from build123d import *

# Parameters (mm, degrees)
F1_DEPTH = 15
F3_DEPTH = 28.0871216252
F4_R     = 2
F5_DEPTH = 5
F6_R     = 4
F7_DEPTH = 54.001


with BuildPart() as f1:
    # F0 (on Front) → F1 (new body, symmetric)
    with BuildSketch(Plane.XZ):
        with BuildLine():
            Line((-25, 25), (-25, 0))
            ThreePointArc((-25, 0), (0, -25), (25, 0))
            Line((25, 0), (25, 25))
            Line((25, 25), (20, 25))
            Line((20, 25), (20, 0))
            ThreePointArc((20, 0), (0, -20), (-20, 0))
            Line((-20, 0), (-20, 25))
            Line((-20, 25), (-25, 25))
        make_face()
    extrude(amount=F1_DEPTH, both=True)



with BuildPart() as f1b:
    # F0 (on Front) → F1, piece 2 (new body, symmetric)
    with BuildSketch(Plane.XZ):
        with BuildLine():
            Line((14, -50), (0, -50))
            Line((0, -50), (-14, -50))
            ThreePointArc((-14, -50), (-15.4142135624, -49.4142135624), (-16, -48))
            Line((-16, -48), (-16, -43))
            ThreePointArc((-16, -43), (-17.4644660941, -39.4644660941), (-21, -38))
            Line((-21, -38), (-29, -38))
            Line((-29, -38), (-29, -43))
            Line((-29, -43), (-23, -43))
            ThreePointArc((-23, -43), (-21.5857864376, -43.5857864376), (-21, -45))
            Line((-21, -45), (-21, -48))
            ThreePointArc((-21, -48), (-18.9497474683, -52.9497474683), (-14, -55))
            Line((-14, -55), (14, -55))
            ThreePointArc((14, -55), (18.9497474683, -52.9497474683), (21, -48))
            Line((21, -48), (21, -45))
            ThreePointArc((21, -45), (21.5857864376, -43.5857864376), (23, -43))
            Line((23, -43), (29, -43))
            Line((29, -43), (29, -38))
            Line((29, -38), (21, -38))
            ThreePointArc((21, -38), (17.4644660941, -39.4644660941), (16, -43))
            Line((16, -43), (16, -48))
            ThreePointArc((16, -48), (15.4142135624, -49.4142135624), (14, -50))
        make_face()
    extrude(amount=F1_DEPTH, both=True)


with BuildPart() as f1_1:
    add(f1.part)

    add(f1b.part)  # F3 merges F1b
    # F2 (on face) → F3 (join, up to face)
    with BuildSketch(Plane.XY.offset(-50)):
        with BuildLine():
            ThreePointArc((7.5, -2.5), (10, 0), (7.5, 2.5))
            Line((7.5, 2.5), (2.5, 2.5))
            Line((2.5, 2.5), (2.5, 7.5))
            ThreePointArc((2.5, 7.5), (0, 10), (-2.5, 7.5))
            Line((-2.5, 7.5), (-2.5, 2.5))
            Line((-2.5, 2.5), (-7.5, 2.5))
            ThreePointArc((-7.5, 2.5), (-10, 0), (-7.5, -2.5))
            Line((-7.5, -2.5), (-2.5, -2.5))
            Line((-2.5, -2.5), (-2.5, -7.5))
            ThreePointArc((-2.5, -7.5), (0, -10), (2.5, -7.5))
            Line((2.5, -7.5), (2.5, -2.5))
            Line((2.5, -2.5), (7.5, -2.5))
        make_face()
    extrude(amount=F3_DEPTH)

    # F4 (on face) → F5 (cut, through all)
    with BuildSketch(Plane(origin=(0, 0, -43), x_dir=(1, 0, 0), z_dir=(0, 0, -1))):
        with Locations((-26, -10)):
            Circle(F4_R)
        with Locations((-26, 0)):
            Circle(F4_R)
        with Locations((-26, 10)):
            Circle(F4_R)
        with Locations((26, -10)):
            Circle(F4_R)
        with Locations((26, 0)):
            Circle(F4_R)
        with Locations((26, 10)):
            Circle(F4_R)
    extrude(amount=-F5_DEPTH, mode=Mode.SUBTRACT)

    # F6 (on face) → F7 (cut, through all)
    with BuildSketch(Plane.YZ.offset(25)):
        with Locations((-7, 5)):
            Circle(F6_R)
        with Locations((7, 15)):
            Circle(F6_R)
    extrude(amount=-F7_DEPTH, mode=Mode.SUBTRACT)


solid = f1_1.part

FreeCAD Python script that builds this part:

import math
import FreeCAD as App
import Part
import Sketcher

V = App.Vector
Q = App.Units.Quantity

doc = App.newDocument("Part")
body = doc.addObject("PartDesign::Body", "Body")

sketch1 = doc.addObject("Sketcher::SketchObject", "Sketch")
body.addObject(sketch1)
sketch1.AttachmentSupport = (doc.XZ_Plane, [""])
sketch1.MapMode = "FlatFace"
sketch1.addGeometry([
    Part.LineSegment(V(-25, 25, 0), V(-25, 0, 0)),
    Part.ArcOfCircle(Part.Circle(V(0, 0, 0), V(0, 0, 1), 25), math.radians(180), math.radians(360)),
    Part.LineSegment(V(25, 0, 0), V(25, 25, 0)),
    Part.LineSegment(V(25, 25, 0), V(20, 25, 0)),
    Part.LineSegment(V(20, 25, 0), V(20, 0, 0)),
    Part.ArcOfCircle(Part.Circle(V(0, 0, 0), V(0, 0, 1), 20), math.radians(180), math.radians(360)),
    Part.LineSegment(V(-20, 0, 0), V(-20, 25, 0)),
    Part.LineSegment(V(-20, 25, 0), V(-25, 25, 0)),
], False)
sketch1.addConstraint([
    Sketcher.Constraint("Tangent", 0, 2, 1, 1),
    Sketcher.Constraint("Tangent", 1, 2, 2, 1),
    Sketcher.Constraint("Coincident", 2, 2, 3, 1),
    Sketcher.Constraint("Coincident", 3, 2, 4, 1),
    Sketcher.Constraint("Tangent", 4, 2, 5, 2),
    Sketcher.Constraint("Tangent", 5, 1, 6, 1),
    Sketcher.Constraint("Coincident", 6, 2, 7, 1),
    Sketcher.Constraint("Coincident", 7, 2, 0, 1),
    Sketcher.Constraint("Vertical", 0),
    Sketcher.Constraint("Vertical", 2),
    Sketcher.Constraint("Horizontal", 3),
    Sketcher.Constraint("Vertical", 4),
    Sketcher.Constraint("Vertical", 6),
    Sketcher.Constraint("Horizontal", 7),
    Sketcher.Constraint("Coincident", 1, 3, -1, 1),
    Sketcher.Constraint("Coincident", 5, 3, -1, 1),
    Sketcher.Constraint("Horizontal", 3, 2, 6, 2),
    Sketcher.Constraint("Radius", 1, Q("25 mm")),
    Sketcher.Constraint("Radius", 5, Q("20 mm")),
    Sketcher.Constraint("DistanceY", 0, 2, 0, 1, Q("25 mm")),
])
pad1 = doc.addObject("PartDesign::Pad", "Pad")
body.addObject(pad1)
pad1.Profile = sketch1
pad1.Length = 30
pad1.Midplane = True
body2 = doc.addObject("PartDesign::Body", "Body001")

sketch2 = doc.addObject("Sketcher::SketchObject", "Sketch001")
body2.addObject(sketch2)
sketch2.AttachmentSupport = (doc.getObject("XZ_Plane001"), [""])
sketch2.MapMode = "FlatFace"
sketch2.addGeometry([
    Part.LineSegment(V(14, -50, 0), V(-14, -50, 0)),
    Part.ArcOfCircle(Part.Circle(V(-14, -48, 0), V(0, 0, 1), 2), math.radians(180), math.radians(270)),
    Part.LineSegment(V(-16, -48, 0), V(-16, -43, 0)),
    Part.ArcOfCircle(Part.Circle(V(-21, -43, 0), V(0, 0, 1), 5), math.radians(0), math.radians(90)),
    Part.LineSegment(V(-21, -38, 0), V(-29, -38, 0)),
    Part.LineSegment(V(-29, -38, 0), V(-29, -43, 0)),
    Part.LineSegment(V(-29, -43, 0), V(-23, -43, 0)),
    Part.ArcOfCircle(Part.Circle(V(-23, -45, 0), V(0, 0, 1), 2), math.radians(0), math.radians(90)),
    Part.LineSegment(V(-21, -45, 0), V(-21, -48, 0)),
    Part.ArcOfCircle(Part.Circle(V(-14, -48, 0), V(0, 0, 1), 7), math.radians(180), math.radians(270)),
    Part.LineSegment(V(-14, -55, 0), V(14, -55, 0)),
    Part.ArcOfCircle(Part.Circle(V(14, -48, 0), V(0, 0, 1), 7), math.radians(-90), math.radians(0)),
    Part.LineSegment(V(21, -48, 0), V(21, -45, 0)),
    Part.ArcOfCircle(Part.Circle(V(23, -45, 0), V(0, 0, 1), 2), math.radians(90), math.radians(180)),
    Part.LineSegment(V(23, -43, 0), V(29, -43, 0)),
    Part.LineSegment(V(29, -43, 0), V(29, -38, 0)),
    Part.LineSegment(V(29, -38, 0), V(21, -38, 0)),
    Part.ArcOfCircle(Part.Circle(V(21, -43, 0), V(0, 0, 1), 5), math.radians(90), math.radians(180)),
    Part.LineSegment(V(16, -43, 0), V(16, -48, 0)),
    Part.ArcOfCircle(Part.Circle(V(14, -48, 0), V(0, 0, 1), 2), math.radians(-90), math.radians(0)),
], False)
sketch2.addConstraint([
    Sketcher.Constraint("Tangent", 0, 2, 1, 2),
    Sketcher.Constraint("Tangent", 1, 1, 2, 1),
    Sketcher.Constraint("Tangent", 2, 2, 3, 1),
    Sketcher.Constraint("Tangent", 3, 2, 4, 1),
    Sketcher.Constraint("Coincident", 4, 2, 5, 1),
    Sketcher.Constraint("Coincident", 5, 2, 6, 1),
    Sketcher.Constraint("Tangent", 6, 2, 7, 2),
    Sketcher.Constraint("Tangent", 7, 1, 8, 1),
    Sketcher.Constraint("Tangent", 8, 2, 9, 1),
    Sketcher.Constraint("Tangent", 9, 2, 10, 1),
    Sketcher.Constraint("Tangent", 10, 2, 11, 1),
    Sketcher.Constraint("Tangent", 11, 2, 12, 1),
    Sketcher.Constraint("Tangent", 12, 2, 13, 2),
    Sketcher.Constraint("Tangent", 13, 1, 14, 1),
    Sketcher.Constraint("Coincident", 14, 2, 15, 1),
    Sketcher.Constraint("Coincident", 15, 2, 16, 1),
    Sketcher.Constraint("Tangent", 16, 2, 17, 1),
    Sketcher.Constraint("Tangent", 17, 2, 18, 1),
    Sketcher.Constraint("Tangent", 18, 2, 19, 2),
    Sketcher.Constraint("Tangent", 19, 1, 0, 1),
    Sketcher.Constraint("Horizontal", 0),
    Sketcher.Constraint("Vertical", 2),
    Sketcher.Constraint("Horizontal", 4),
    Sketcher.Constraint("Vertical", 5),
    Sketcher.Constraint("Horizontal", 6),
    Sketcher.Constraint("Vertical", 8),
    Sketcher.Constraint("Horizontal", 10),
    Sketcher.Constraint("Vertical", 12),
    Sketcher.Constraint("Horizontal", 14),
    Sketcher.Constraint("Vertical", 15),
    Sketcher.Constraint("Horizontal", 16),
    Sketcher.Constraint("Vertical", 18),
    Sketcher.Constraint("Coincident", 9, 3, 1, 3),
    Sketcher.Constraint("Coincident", 19, 3, 11, 3),
    Sketcher.Constraint("Equal", 1, 7),
    Sketcher.Constraint("Equal", 9, 11),
    Sketcher.Constraint("Equal", 7, 13),
    Sketcher.Constraint("Equal", 3, 17),
    Sketcher.Constraint("Symmetric", 7, 3, 13, 3, -2),
    Sketcher.Constraint("Symmetric", 4, 2, 15, 2, -2),
    Sketcher.Constraint("Horizontal", 2, 2, 5, 2),
    Sketcher.Constraint("Vertical", 3, 2, 7, 1),
    Sketcher.Constraint("Equal", 2, 5),
    Sketcher.Constraint("Radius", 1, Q("2 mm")),
    Sketcher.Constraint("Radius", 3, Q("5 mm")),
    Sketcher.Constraint("DistanceX", 0, 2, 0, 1, Q("28 mm")),
    Sketcher.Constraint("DistanceX", 4, 2, 4, 1, Q("8 mm")),
    Sketcher.Constraint("DistanceY", 1, 3, -1, 1, Q("48 mm")),
])
pad2 = doc.addObject("PartDesign::Pad", "Pad001")
body2.addObject(pad2)
pad2.Profile = sketch2
pad2.Length = 30
pad2.Midplane = True
body.AllowCompound = True
doc.recompute()

boolean = doc.addObject("PartDesign::Boolean", "Boolean")
body.addObject(boolean)
boolean.Type = "Fuse"
boolean.addObjects([body2])

sketch3 = doc.addObject("Sketcher::SketchObject", "Sketch002")
body.addObject(sketch3)
sketch3.AttachmentSupport = (doc.XY_Plane, [""])
sketch3.MapMode = "FlatFace"
sketch3.AttachmentOffset = App.Placement(V(0, 0, -50), App.Rotation())
sketch3.addGeometry([
    Part.ArcOfCircle(Part.Circle(V(7.5, 0, 0), V(0, 0, 1), 2.5), math.radians(-90), math.radians(90)),
    Part.LineSegment(V(7.5, 2.5, 0), V(2.5, 2.5, 0)),
    Part.LineSegment(V(2.5, 2.5, 0), V(2.5, 7.5, 0)),
    Part.ArcOfCircle(Part.Circle(V(0, 7.5, 0), V(0, 0, 1), 2.5), math.radians(0), math.radians(180)),
    Part.LineSegment(V(-2.5, 7.5, 0), V(-2.5, 2.5, 0)),
    Part.LineSegment(V(-2.5, 2.5, 0), V(-7.5, 2.5, 0)),
    Part.ArcOfCircle(Part.Circle(V(-7.5, 0, 0), V(0, 0, 1), 2.5), math.radians(90), math.radians(270)),
    Part.LineSegment(V(-7.5, -2.5, 0), V(-2.5, -2.5, 0)),
    Part.LineSegment(V(-2.5, -2.5, 0), V(-2.5, -7.5, 0)),
    Part.ArcOfCircle(Part.Circle(V(0, -7.5, 0), V(0, 0, 1), 2.5), math.radians(180), math.radians(360)),
    Part.LineSegment(V(2.5, -7.5, 0), V(2.5, -2.5, 0)),
    Part.LineSegment(V(2.5, -2.5, 0), V(7.5, -2.5, 0)),
], False)
sketch3.addConstraint([
    Sketcher.Constraint("Tangent", 0, 2, 1, 1),
    Sketcher.Constraint("Coincident", 1, 2, 2, 1),
    Sketcher.Constraint("Tangent", 2, 2, 3, 1),
    Sketcher.Constraint("Tangent", 3, 2, 4, 1),
    Sketcher.Constraint("Coincident", 4, 2, 5, 1),
    Sketcher.Constraint("Tangent", 5, 2, 6, 1),
    Sketcher.Constraint("Tangent", 6, 2, 7, 1),
    Sketcher.Constraint("Coincident", 7, 2, 8, 1),
    Sketcher.Constraint("Tangent", 8, 2, 9, 1),
    Sketcher.Constraint("Tangent", 9, 2, 10, 1),
    Sketcher.Constraint("Coincident", 10, 2, 11, 1),
    Sketcher.Constraint("Tangent", 11, 2, 0, 1),
    Sketcher.Constraint("Horizontal", 1),
    Sketcher.Constraint("Vertical", 2),
    Sketcher.Constraint("Vertical", 4),
    Sketcher.Constraint("Horizontal", 5),
    Sketcher.Constraint("Horizontal", 7),
    Sketcher.Constraint("Vertical", 8),
    Sketcher.Constraint("Vertical", 10),
    Sketcher.Constraint("Horizontal", 11),
    Sketcher.Constraint("Equal", 0, 3),
    Sketcher.Constraint("Equal", 3, 6),
    Sketcher.Constraint("Equal", 6, 9),
    Sketcher.Constraint("Symmetric", 0, 3, 6, 3, -1, 1),
    Sketcher.Constraint("Symmetric", 3, 3, 9, 3, -1, 1),
    Sketcher.Constraint("Symmetric", 1, 2, 4, 2, -2),
    Sketcher.Constraint("Equal", 11, 2),
    Sketcher.Constraint("Radius", 0, Q("2.5 mm")),
    Sketcher.Constraint("DistanceX", 1, 2, 1, 1, Q("5 mm")),
])
pad3 = doc.addObject("PartDesign::Pad", "Pad002")
body.addObject(pad3)
pad3.Profile = sketch3
pad3.Length = 28.087122

sketch4 = doc.addObject("Sketcher::SketchObject", "Sketch003")
body.addObject(sketch4)
sketch4.AttachmentSupport = (doc.XY_Plane, [""])
sketch4.MapMode = "FlatFace"
sketch4.AttachmentOffset = App.Placement(V(0, 0, -43), App.Rotation())
sketch4.addGeometry([
    Part.Circle(V(-26, 10, 0), V(0, 0, 1), 2),
    Part.Circle(V(-26, 0, 0), V(0, 0, 1), 2),
    Part.Circle(V(-26, -10, 0), V(0, 0, 1), 2),
    Part.Circle(V(26, 10, 0), V(0, 0, 1), 2),
    Part.Circle(V(26, 0, 0), V(0, 0, 1), 2),
    Part.Circle(V(26, -10, 0), V(0, 0, 1), 2),
], False)
sketch4.addConstraint([
    Sketcher.Constraint("Equal", 0, 1),
    Sketcher.Constraint("Equal", 1, 2),
    Sketcher.Constraint("Equal", 2, 3),
    Sketcher.Constraint("Equal", 3, 4),
    Sketcher.Constraint("Equal", 4, 5),
    Sketcher.Constraint("Symmetric", 2, 3, 3, 3, -1, 1),
    Sketcher.Constraint("Symmetric", 1, 3, 4, 3, -1, 1),
    Sketcher.Constraint("Symmetric", 0, 3, 5, 3, -1, 1),
    Sketcher.Constraint("Symmetric", 0, 3, 3, 3, -2),
    Sketcher.Constraint("PointOnObject", 1, 3, -1),
    Sketcher.Constraint("Vertical", 0, 3, 1, 3),
    Sketcher.Constraint("Diameter", 0, Q("4 mm")),
    Sketcher.Constraint("DistanceX", 0, 3, -1, 1, Q("26 mm")),
    Sketcher.Constraint("DistanceY", -1, 1, 0, 3, Q("10 mm")),
])
pocket1 = doc.addObject("PartDesign::Pocket", "Pocket")
body.addObject(pocket1)
pocket1.Profile = sketch4
pocket1.Length = 5
pocket1.Reversed = True

sketch5 = doc.addObject("Sketcher::SketchObject", "Sketch004")
body.addObject(sketch5)
sketch5.AttachmentSupport = (doc.YZ_Plane, [""])
sketch5.MapMode = "FlatFace"
sketch5.AttachmentOffset = App.Placement(V(0, 0, 25), App.Rotation())
sketch5.addGeometry([
    Part.Circle(V(-7, 5, 0), V(0, 0, 1), 4),
    Part.Circle(V(7, 15, 0), V(0, 0, 1), 4),
], False)
sketch5.addConstraint([
    Sketcher.Constraint("Equal", 0, 1),
    Sketcher.Constraint("Diameter", 0, Q("8 mm")),
    Sketcher.Constraint("DistanceX", 0, 3, -1, 1, Q("7 mm")),
    Sketcher.Constraint("DistanceY", -1, 1, 0, 3, Q("5 mm")),
    Sketcher.Constraint("DistanceX", -1, 1, 1, 3, Q("7 mm")),
    Sketcher.Constraint("DistanceY", -1, 1, 1, 3, Q("15 mm")),
])
pocket2 = doc.addObject("PartDesign::Pocket", "Pocket001")
body.addObject(pocket2)
pocket2.Profile = sketch5
pocket2.Type = "ThroughAll"

doc.recompute()
